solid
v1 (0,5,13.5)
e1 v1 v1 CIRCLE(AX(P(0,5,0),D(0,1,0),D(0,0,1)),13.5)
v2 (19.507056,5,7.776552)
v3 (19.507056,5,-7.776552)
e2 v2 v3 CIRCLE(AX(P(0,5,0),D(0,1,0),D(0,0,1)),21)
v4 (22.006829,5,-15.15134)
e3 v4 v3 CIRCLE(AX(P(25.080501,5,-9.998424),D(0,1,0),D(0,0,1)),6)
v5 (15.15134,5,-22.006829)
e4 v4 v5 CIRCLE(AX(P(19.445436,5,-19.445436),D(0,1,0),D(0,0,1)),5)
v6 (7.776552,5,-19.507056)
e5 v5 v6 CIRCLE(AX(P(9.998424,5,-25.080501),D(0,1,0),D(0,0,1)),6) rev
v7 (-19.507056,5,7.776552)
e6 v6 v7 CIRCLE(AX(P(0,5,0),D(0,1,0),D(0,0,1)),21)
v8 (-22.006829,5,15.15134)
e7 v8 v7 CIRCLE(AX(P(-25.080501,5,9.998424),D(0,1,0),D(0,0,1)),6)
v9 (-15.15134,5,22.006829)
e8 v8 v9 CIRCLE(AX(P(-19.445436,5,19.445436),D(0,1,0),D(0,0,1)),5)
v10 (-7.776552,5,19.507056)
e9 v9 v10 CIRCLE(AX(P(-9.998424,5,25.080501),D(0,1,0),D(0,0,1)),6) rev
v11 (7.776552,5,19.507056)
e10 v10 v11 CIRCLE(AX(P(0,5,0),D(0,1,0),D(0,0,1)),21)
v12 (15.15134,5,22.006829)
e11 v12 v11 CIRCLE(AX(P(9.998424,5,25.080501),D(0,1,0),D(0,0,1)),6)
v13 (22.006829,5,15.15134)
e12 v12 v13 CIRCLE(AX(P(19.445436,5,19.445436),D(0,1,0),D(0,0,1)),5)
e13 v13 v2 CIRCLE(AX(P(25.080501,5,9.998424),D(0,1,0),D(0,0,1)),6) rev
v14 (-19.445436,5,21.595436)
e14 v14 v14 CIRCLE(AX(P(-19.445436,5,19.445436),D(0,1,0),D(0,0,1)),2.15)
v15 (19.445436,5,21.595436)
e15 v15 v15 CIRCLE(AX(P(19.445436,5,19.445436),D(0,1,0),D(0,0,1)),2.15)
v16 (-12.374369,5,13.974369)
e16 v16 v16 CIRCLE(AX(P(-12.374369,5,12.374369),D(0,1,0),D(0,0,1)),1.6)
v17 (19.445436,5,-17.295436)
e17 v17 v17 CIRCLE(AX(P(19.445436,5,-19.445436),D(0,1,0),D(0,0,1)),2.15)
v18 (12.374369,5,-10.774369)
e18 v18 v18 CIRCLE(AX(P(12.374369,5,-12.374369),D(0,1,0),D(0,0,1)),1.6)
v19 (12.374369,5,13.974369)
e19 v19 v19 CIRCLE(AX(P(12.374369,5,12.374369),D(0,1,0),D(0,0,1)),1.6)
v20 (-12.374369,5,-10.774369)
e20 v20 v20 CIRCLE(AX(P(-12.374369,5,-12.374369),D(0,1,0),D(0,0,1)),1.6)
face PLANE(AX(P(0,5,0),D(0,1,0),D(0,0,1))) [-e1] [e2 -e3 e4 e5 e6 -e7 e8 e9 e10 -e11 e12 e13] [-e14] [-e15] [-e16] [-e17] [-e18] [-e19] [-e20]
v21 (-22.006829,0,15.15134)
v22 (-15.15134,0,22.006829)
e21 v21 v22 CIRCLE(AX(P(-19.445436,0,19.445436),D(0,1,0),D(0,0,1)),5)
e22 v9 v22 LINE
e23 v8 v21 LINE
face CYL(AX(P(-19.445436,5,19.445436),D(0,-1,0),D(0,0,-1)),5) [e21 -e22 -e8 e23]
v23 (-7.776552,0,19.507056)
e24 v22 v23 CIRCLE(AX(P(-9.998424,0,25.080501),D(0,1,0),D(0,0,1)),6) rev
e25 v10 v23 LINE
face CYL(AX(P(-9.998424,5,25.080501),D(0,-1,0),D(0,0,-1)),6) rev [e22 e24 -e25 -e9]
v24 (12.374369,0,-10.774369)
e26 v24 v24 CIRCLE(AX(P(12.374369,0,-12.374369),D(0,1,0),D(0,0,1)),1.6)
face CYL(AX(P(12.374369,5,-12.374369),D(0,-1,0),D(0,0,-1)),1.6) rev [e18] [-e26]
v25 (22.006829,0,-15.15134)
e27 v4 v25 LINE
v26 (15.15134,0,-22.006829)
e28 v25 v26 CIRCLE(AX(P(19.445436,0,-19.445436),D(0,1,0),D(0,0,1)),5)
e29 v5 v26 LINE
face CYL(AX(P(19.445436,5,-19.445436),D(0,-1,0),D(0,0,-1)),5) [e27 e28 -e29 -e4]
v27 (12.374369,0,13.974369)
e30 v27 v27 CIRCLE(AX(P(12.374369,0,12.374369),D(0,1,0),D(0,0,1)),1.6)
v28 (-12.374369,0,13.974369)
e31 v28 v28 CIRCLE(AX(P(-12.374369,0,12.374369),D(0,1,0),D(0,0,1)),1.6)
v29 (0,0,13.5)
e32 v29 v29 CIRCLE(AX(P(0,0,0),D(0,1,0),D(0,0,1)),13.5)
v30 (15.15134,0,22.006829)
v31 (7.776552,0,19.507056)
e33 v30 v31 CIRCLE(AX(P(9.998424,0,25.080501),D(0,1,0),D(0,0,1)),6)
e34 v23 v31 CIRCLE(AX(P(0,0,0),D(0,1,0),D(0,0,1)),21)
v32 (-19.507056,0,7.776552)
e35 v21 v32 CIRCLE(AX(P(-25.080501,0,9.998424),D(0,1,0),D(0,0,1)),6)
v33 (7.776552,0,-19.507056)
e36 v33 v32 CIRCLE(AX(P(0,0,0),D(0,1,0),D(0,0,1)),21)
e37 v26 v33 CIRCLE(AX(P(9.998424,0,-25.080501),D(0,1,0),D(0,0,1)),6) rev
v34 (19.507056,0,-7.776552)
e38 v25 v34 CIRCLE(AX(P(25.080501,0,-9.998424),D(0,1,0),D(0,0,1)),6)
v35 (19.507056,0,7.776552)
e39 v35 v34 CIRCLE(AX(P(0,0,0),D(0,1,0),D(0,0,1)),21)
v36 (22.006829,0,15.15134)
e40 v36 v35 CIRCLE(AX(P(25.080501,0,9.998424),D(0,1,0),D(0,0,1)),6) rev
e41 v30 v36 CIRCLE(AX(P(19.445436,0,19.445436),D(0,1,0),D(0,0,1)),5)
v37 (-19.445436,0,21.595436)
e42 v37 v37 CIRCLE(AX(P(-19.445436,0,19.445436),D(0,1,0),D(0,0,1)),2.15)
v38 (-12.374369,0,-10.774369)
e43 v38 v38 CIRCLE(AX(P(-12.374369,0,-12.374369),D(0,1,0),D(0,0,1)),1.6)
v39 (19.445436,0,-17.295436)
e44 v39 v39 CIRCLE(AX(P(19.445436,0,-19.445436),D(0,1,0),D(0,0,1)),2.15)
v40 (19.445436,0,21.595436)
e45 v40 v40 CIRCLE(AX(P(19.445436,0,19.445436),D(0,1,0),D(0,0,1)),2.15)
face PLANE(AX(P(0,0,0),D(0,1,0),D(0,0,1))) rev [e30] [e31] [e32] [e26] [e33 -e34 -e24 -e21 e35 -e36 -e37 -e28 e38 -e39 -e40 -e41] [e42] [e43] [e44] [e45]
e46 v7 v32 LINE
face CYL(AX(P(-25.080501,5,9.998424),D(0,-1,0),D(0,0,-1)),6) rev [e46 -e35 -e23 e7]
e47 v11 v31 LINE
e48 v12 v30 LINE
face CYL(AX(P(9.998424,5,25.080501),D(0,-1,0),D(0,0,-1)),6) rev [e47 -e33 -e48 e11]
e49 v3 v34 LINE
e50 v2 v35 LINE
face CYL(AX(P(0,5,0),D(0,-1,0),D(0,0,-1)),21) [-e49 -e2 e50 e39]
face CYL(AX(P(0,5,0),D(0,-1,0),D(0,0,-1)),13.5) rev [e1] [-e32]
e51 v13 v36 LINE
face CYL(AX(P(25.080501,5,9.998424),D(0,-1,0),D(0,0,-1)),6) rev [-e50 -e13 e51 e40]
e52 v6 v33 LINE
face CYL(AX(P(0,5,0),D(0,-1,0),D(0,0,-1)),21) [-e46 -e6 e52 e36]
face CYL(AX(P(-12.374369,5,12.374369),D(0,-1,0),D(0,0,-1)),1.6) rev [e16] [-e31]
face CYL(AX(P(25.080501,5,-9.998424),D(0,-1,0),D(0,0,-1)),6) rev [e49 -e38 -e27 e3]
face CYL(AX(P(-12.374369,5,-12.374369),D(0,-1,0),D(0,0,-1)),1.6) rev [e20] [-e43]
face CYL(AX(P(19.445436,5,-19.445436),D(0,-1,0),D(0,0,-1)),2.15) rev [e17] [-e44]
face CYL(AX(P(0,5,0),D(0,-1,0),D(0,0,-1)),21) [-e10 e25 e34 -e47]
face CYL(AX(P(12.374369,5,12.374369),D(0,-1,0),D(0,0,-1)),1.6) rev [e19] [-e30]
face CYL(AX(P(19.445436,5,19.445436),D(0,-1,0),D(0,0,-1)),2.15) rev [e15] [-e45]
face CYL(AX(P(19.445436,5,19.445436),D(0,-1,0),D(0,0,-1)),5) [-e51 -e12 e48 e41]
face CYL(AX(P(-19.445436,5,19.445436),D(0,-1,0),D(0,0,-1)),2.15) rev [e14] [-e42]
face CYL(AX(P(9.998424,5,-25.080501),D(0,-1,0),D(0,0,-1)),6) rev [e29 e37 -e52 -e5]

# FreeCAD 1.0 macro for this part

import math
import FreeCAD as App
import Part
import Sketcher

V = App.Vector
Q = App.Units.Quantity

doc = App.newDocument("Part")
params = doc.addObject("Spreadsheet::Sheet", "Params")
for row, (alias, value) in enumerate([
    ("sketch1_diameter", "27 mm"),
    ("sketch1_radius", "6 mm"),
    ("sketch1_radius2", "21 mm"),
    ("sketch1_radius3", "5 mm"),
    ("sketch1_diameter2", "4.3 mm"),
    ("pad1_length", "5 mm"),
], start=1):
    params.set(f"A{row}", alias)
    params.set(f"B{row}", "=" + value)
    params.setAlias(f"B{row}", alias)

body = doc.addObject("PartDesign::Body", "Body")

# Sketch on XZ plane
sketch1 = doc.addObject("Sketcher::SketchObject", "Sketch")
body.addObject(sketch1)
sketch1.AttachmentSupport = (doc.XZ_Plane, [""])
sketch1.MapMode = "FlatFace"
sketch1.addGeometry([
    Part.ArcOfCircle(Part.Circle(V(10, -25.1, 0), V(0, 0, 1), 6), math.radians(31), math.radians(112)),  # 0
    Part.ArcOfCircle(Part.Circle(V(0, 0, 0), V(0, 0, 1), 21), math.radians(158), math.radians(292)),  # 1
    Part.ArcOfCircle(Part.Circle(V(-25.1, 10, 0), V(0, 0, 1), 6), math.radians(-22), math.radians(59)),  # 2
    Part.ArcOfCircle(Part.Circle(V(-19.4, 19.4, 0), V(0, 0, 1), 5), math.radians(31), math.radians(239)),  # 3
    Part.ArcOfCircle(Part.Circle(V(-10, 25.1, 0), V(0, 0, 1), 6), math.radians(-149), math.radians(-68)),  # 4
    Part.ArcOfCircle(Part.Circle(V(0, 0, 0), V(0, 0, 1), 21), math.radians(68), math.radians(112)),  # 5
    Part.ArcOfCircle(Part.Circle(V(10, 25.1, 0), V(0, 0, 1), 6), math.radians(-112), math.radians(-31)),  # 6
    Part.ArcOfCircle(Part.Circle(V(19.4, 19.4, 0), V(0, 0, 1), 5), math.radians(-59), math.radians(149)),  # 7
    Part.ArcOfCircle(Part.Circle(V(25.1, 10, 0), V(0, 0, 1), 6), math.radians(121), math.radians(202)),  # 8
    Part.ArcOfCircle(Part.Circle(V(0, 0, 0), V(0, 0, 1), 21), math.radians(-22), math.radians(22)),  # 9
    Part.ArcOfCircle(Part.Circle(V(25.1, -10, 0), V(0, 0, 1), 6), math.radians(158), math.radians(239)),  # 10
    Part.ArcOfCircle(Part.Circle(V(19.4, -19.4, 0), V(0, 0, 1), 5), math.radians(-149), math.radians(59)),  # 11
    Part.Circle(V(-19.4, 19.4, 0), V(0, 0, 1), 2.1),  # 12
    Part.Circle(V(-12.4, 12.4, 0), V(0, 0, 1), 1.6),  # 13
    Part.Circle(V(19.4, 19.4, 0), V(0, 0, 1), 2.1),  # 14
    Part.Circle(V(12.4, 12.4, 0), V(0, 0, 1), 1.6),  # 15
    Part.Circle(V(-12.4, -12.4, 0), V(0, 0, 1), 1.6),  # 16
    Part.Circle(V(0, 0, 0), V(0, 0, 1), 13.5),  # 17
    Part.Circle(V(12.4, -12.4, 0), V(0, 0, 1), 1.6),  # 18
    Part.Circle(V(19.4, -19.4, 0), V(0, 0, 1), 2.1),  # 19
], False)
sketch1.addConstraint([
    Sketcher.Constraint("Tangent", 0, 2, 1, 2),
    Sketcher.Constraint("Tangent", 1, 1, 2, 1),
    Sketcher.Constraint("Tangent", 2, 2, 3, 2),
    Sketcher.Constraint("Tangent", 3, 1, 4, 1),
    Sketcher.Constraint("Tangent", 4, 2, 5, 2),
    Sketcher.Constraint("Tangent", 5, 1, 6, 1),
    Sketcher.Constraint("Tangent", 6, 2, 7, 2),
    Sketcher.Constraint("Tangent", 7, 1, 8, 1),
    Sketcher.Constraint("Tangent", 8, 2, 9, 2),
    Sketcher.Constraint("Tangent", 9, 1, 10, 1),
    Sketcher.Constraint("Tangent", 10, 2, 11, 2),
    Sketcher.Constraint("Tangent", 11, 1, 0, 1),
    Sketcher.Constraint("Coincident", 1, 3, -1, 1),
    Sketcher.Constraint("Coincident", 5, 3, -1, 1),
    Sketcher.Constraint("Coincident", 9, 3, -1, 1),
    Sketcher.Constraint("Coincident", 17, 3, -1, 1),
    Sketcher.Constraint("Coincident", 12, 3, 3, 3),
    Sketcher.Constraint("Coincident", 14, 3, 7, 3),
    Sketcher.Constraint("Coincident", 19, 3, 11, 3),
    Sketcher.Constraint("Equal", 0, 2),
    Sketcher.Constraint("Equal", 2, 4),
    Sketcher.Constraint("Equal", 1, 5),
    Sketcher.Constraint("Equal", 4, 6),
    Sketcher.Constraint("Equal", 3, 7),
    Sketcher.Constraint("Equal", 6, 8),
    Sketcher.Constraint("Equal", 5, 9),
    Sketcher.Constraint("Equal", 8, 10),
    Sketcher.Constraint("Equal", 7, 11),
    Sketcher.Constraint("Equal", 12, 14),
    Sketcher.Constraint("Equal", 13, 15),
    Sketcher.Constraint("Equal", 15, 16),
    Sketcher.Constraint("Equal", 16, 18),
    Sketcher.Constraint("Equal", 14, 19),
    Sketcher.Constraint("Symmetric", 3, 3, 11, 3, -1, 1),
    Sketcher.Constraint("Symmetric", 15, 3, 16, 3, -1, 1),
    Sketcher.Constraint("Symmetric", 13, 3, 18, 3, -1, 1),
    Sketcher.Constraint("Symmetric", 3, 3, 7, 3, -2),
    Sketcher.Constraint("Symmetric", 13, 3, 15, 3, -2),
    Sketcher.Constraint("Diameter", 17, Q("27 mm")),
    Sketcher.Constraint("Radius", 0, Q("6 mm")),
    Sketcher.Constraint("Radius", 1, Q("21 mm")),
    Sketcher.Constraint("Radius", 3, Q("5 mm")),
    Sketcher.Constraint("Diameter", 12, Q("4.3 mm")),
    Sketcher.Constraint("Diameter", 13, Q("3.2 mm")),
    Sketcher.Constraint("DistanceY", 0, 3, 4, 3, Q("50.161002 mm")),
    Sketcher.Constraint("DistanceX", 2, 3, -1, 1, Q("25.080501 mm")),
    Sketcher.Constraint("DistanceX", 13, 3, -1, 1, Q("12.374369 mm")),
    Sketcher.Constraint("DistanceY", -1, 1, 13, 3, Q("12.374369 mm")),
])
sketch1.setExpression("Constraints[38]", "Params.sketch1_diameter")
sketch1.setExpression("Constraints[39]", "Params.sketch1_radius")
sketch1.setExpression("Constraints[40]", "Params.sketch1_radius2")
sketch1.setExpression("Constraints[41]", "Params.sketch1_radius3")
sketch1.setExpression("Constraints[42]", "Params.sketch1_diameter2")
pad1 = doc.addObject("PartDesign::Pad", "Pad")
body.addObject(pad1)
pad1.Profile = sketch1
pad1.setExpression("Length", "Params.pad1_length")
pad1.Reversed = True

doc.recompute()
